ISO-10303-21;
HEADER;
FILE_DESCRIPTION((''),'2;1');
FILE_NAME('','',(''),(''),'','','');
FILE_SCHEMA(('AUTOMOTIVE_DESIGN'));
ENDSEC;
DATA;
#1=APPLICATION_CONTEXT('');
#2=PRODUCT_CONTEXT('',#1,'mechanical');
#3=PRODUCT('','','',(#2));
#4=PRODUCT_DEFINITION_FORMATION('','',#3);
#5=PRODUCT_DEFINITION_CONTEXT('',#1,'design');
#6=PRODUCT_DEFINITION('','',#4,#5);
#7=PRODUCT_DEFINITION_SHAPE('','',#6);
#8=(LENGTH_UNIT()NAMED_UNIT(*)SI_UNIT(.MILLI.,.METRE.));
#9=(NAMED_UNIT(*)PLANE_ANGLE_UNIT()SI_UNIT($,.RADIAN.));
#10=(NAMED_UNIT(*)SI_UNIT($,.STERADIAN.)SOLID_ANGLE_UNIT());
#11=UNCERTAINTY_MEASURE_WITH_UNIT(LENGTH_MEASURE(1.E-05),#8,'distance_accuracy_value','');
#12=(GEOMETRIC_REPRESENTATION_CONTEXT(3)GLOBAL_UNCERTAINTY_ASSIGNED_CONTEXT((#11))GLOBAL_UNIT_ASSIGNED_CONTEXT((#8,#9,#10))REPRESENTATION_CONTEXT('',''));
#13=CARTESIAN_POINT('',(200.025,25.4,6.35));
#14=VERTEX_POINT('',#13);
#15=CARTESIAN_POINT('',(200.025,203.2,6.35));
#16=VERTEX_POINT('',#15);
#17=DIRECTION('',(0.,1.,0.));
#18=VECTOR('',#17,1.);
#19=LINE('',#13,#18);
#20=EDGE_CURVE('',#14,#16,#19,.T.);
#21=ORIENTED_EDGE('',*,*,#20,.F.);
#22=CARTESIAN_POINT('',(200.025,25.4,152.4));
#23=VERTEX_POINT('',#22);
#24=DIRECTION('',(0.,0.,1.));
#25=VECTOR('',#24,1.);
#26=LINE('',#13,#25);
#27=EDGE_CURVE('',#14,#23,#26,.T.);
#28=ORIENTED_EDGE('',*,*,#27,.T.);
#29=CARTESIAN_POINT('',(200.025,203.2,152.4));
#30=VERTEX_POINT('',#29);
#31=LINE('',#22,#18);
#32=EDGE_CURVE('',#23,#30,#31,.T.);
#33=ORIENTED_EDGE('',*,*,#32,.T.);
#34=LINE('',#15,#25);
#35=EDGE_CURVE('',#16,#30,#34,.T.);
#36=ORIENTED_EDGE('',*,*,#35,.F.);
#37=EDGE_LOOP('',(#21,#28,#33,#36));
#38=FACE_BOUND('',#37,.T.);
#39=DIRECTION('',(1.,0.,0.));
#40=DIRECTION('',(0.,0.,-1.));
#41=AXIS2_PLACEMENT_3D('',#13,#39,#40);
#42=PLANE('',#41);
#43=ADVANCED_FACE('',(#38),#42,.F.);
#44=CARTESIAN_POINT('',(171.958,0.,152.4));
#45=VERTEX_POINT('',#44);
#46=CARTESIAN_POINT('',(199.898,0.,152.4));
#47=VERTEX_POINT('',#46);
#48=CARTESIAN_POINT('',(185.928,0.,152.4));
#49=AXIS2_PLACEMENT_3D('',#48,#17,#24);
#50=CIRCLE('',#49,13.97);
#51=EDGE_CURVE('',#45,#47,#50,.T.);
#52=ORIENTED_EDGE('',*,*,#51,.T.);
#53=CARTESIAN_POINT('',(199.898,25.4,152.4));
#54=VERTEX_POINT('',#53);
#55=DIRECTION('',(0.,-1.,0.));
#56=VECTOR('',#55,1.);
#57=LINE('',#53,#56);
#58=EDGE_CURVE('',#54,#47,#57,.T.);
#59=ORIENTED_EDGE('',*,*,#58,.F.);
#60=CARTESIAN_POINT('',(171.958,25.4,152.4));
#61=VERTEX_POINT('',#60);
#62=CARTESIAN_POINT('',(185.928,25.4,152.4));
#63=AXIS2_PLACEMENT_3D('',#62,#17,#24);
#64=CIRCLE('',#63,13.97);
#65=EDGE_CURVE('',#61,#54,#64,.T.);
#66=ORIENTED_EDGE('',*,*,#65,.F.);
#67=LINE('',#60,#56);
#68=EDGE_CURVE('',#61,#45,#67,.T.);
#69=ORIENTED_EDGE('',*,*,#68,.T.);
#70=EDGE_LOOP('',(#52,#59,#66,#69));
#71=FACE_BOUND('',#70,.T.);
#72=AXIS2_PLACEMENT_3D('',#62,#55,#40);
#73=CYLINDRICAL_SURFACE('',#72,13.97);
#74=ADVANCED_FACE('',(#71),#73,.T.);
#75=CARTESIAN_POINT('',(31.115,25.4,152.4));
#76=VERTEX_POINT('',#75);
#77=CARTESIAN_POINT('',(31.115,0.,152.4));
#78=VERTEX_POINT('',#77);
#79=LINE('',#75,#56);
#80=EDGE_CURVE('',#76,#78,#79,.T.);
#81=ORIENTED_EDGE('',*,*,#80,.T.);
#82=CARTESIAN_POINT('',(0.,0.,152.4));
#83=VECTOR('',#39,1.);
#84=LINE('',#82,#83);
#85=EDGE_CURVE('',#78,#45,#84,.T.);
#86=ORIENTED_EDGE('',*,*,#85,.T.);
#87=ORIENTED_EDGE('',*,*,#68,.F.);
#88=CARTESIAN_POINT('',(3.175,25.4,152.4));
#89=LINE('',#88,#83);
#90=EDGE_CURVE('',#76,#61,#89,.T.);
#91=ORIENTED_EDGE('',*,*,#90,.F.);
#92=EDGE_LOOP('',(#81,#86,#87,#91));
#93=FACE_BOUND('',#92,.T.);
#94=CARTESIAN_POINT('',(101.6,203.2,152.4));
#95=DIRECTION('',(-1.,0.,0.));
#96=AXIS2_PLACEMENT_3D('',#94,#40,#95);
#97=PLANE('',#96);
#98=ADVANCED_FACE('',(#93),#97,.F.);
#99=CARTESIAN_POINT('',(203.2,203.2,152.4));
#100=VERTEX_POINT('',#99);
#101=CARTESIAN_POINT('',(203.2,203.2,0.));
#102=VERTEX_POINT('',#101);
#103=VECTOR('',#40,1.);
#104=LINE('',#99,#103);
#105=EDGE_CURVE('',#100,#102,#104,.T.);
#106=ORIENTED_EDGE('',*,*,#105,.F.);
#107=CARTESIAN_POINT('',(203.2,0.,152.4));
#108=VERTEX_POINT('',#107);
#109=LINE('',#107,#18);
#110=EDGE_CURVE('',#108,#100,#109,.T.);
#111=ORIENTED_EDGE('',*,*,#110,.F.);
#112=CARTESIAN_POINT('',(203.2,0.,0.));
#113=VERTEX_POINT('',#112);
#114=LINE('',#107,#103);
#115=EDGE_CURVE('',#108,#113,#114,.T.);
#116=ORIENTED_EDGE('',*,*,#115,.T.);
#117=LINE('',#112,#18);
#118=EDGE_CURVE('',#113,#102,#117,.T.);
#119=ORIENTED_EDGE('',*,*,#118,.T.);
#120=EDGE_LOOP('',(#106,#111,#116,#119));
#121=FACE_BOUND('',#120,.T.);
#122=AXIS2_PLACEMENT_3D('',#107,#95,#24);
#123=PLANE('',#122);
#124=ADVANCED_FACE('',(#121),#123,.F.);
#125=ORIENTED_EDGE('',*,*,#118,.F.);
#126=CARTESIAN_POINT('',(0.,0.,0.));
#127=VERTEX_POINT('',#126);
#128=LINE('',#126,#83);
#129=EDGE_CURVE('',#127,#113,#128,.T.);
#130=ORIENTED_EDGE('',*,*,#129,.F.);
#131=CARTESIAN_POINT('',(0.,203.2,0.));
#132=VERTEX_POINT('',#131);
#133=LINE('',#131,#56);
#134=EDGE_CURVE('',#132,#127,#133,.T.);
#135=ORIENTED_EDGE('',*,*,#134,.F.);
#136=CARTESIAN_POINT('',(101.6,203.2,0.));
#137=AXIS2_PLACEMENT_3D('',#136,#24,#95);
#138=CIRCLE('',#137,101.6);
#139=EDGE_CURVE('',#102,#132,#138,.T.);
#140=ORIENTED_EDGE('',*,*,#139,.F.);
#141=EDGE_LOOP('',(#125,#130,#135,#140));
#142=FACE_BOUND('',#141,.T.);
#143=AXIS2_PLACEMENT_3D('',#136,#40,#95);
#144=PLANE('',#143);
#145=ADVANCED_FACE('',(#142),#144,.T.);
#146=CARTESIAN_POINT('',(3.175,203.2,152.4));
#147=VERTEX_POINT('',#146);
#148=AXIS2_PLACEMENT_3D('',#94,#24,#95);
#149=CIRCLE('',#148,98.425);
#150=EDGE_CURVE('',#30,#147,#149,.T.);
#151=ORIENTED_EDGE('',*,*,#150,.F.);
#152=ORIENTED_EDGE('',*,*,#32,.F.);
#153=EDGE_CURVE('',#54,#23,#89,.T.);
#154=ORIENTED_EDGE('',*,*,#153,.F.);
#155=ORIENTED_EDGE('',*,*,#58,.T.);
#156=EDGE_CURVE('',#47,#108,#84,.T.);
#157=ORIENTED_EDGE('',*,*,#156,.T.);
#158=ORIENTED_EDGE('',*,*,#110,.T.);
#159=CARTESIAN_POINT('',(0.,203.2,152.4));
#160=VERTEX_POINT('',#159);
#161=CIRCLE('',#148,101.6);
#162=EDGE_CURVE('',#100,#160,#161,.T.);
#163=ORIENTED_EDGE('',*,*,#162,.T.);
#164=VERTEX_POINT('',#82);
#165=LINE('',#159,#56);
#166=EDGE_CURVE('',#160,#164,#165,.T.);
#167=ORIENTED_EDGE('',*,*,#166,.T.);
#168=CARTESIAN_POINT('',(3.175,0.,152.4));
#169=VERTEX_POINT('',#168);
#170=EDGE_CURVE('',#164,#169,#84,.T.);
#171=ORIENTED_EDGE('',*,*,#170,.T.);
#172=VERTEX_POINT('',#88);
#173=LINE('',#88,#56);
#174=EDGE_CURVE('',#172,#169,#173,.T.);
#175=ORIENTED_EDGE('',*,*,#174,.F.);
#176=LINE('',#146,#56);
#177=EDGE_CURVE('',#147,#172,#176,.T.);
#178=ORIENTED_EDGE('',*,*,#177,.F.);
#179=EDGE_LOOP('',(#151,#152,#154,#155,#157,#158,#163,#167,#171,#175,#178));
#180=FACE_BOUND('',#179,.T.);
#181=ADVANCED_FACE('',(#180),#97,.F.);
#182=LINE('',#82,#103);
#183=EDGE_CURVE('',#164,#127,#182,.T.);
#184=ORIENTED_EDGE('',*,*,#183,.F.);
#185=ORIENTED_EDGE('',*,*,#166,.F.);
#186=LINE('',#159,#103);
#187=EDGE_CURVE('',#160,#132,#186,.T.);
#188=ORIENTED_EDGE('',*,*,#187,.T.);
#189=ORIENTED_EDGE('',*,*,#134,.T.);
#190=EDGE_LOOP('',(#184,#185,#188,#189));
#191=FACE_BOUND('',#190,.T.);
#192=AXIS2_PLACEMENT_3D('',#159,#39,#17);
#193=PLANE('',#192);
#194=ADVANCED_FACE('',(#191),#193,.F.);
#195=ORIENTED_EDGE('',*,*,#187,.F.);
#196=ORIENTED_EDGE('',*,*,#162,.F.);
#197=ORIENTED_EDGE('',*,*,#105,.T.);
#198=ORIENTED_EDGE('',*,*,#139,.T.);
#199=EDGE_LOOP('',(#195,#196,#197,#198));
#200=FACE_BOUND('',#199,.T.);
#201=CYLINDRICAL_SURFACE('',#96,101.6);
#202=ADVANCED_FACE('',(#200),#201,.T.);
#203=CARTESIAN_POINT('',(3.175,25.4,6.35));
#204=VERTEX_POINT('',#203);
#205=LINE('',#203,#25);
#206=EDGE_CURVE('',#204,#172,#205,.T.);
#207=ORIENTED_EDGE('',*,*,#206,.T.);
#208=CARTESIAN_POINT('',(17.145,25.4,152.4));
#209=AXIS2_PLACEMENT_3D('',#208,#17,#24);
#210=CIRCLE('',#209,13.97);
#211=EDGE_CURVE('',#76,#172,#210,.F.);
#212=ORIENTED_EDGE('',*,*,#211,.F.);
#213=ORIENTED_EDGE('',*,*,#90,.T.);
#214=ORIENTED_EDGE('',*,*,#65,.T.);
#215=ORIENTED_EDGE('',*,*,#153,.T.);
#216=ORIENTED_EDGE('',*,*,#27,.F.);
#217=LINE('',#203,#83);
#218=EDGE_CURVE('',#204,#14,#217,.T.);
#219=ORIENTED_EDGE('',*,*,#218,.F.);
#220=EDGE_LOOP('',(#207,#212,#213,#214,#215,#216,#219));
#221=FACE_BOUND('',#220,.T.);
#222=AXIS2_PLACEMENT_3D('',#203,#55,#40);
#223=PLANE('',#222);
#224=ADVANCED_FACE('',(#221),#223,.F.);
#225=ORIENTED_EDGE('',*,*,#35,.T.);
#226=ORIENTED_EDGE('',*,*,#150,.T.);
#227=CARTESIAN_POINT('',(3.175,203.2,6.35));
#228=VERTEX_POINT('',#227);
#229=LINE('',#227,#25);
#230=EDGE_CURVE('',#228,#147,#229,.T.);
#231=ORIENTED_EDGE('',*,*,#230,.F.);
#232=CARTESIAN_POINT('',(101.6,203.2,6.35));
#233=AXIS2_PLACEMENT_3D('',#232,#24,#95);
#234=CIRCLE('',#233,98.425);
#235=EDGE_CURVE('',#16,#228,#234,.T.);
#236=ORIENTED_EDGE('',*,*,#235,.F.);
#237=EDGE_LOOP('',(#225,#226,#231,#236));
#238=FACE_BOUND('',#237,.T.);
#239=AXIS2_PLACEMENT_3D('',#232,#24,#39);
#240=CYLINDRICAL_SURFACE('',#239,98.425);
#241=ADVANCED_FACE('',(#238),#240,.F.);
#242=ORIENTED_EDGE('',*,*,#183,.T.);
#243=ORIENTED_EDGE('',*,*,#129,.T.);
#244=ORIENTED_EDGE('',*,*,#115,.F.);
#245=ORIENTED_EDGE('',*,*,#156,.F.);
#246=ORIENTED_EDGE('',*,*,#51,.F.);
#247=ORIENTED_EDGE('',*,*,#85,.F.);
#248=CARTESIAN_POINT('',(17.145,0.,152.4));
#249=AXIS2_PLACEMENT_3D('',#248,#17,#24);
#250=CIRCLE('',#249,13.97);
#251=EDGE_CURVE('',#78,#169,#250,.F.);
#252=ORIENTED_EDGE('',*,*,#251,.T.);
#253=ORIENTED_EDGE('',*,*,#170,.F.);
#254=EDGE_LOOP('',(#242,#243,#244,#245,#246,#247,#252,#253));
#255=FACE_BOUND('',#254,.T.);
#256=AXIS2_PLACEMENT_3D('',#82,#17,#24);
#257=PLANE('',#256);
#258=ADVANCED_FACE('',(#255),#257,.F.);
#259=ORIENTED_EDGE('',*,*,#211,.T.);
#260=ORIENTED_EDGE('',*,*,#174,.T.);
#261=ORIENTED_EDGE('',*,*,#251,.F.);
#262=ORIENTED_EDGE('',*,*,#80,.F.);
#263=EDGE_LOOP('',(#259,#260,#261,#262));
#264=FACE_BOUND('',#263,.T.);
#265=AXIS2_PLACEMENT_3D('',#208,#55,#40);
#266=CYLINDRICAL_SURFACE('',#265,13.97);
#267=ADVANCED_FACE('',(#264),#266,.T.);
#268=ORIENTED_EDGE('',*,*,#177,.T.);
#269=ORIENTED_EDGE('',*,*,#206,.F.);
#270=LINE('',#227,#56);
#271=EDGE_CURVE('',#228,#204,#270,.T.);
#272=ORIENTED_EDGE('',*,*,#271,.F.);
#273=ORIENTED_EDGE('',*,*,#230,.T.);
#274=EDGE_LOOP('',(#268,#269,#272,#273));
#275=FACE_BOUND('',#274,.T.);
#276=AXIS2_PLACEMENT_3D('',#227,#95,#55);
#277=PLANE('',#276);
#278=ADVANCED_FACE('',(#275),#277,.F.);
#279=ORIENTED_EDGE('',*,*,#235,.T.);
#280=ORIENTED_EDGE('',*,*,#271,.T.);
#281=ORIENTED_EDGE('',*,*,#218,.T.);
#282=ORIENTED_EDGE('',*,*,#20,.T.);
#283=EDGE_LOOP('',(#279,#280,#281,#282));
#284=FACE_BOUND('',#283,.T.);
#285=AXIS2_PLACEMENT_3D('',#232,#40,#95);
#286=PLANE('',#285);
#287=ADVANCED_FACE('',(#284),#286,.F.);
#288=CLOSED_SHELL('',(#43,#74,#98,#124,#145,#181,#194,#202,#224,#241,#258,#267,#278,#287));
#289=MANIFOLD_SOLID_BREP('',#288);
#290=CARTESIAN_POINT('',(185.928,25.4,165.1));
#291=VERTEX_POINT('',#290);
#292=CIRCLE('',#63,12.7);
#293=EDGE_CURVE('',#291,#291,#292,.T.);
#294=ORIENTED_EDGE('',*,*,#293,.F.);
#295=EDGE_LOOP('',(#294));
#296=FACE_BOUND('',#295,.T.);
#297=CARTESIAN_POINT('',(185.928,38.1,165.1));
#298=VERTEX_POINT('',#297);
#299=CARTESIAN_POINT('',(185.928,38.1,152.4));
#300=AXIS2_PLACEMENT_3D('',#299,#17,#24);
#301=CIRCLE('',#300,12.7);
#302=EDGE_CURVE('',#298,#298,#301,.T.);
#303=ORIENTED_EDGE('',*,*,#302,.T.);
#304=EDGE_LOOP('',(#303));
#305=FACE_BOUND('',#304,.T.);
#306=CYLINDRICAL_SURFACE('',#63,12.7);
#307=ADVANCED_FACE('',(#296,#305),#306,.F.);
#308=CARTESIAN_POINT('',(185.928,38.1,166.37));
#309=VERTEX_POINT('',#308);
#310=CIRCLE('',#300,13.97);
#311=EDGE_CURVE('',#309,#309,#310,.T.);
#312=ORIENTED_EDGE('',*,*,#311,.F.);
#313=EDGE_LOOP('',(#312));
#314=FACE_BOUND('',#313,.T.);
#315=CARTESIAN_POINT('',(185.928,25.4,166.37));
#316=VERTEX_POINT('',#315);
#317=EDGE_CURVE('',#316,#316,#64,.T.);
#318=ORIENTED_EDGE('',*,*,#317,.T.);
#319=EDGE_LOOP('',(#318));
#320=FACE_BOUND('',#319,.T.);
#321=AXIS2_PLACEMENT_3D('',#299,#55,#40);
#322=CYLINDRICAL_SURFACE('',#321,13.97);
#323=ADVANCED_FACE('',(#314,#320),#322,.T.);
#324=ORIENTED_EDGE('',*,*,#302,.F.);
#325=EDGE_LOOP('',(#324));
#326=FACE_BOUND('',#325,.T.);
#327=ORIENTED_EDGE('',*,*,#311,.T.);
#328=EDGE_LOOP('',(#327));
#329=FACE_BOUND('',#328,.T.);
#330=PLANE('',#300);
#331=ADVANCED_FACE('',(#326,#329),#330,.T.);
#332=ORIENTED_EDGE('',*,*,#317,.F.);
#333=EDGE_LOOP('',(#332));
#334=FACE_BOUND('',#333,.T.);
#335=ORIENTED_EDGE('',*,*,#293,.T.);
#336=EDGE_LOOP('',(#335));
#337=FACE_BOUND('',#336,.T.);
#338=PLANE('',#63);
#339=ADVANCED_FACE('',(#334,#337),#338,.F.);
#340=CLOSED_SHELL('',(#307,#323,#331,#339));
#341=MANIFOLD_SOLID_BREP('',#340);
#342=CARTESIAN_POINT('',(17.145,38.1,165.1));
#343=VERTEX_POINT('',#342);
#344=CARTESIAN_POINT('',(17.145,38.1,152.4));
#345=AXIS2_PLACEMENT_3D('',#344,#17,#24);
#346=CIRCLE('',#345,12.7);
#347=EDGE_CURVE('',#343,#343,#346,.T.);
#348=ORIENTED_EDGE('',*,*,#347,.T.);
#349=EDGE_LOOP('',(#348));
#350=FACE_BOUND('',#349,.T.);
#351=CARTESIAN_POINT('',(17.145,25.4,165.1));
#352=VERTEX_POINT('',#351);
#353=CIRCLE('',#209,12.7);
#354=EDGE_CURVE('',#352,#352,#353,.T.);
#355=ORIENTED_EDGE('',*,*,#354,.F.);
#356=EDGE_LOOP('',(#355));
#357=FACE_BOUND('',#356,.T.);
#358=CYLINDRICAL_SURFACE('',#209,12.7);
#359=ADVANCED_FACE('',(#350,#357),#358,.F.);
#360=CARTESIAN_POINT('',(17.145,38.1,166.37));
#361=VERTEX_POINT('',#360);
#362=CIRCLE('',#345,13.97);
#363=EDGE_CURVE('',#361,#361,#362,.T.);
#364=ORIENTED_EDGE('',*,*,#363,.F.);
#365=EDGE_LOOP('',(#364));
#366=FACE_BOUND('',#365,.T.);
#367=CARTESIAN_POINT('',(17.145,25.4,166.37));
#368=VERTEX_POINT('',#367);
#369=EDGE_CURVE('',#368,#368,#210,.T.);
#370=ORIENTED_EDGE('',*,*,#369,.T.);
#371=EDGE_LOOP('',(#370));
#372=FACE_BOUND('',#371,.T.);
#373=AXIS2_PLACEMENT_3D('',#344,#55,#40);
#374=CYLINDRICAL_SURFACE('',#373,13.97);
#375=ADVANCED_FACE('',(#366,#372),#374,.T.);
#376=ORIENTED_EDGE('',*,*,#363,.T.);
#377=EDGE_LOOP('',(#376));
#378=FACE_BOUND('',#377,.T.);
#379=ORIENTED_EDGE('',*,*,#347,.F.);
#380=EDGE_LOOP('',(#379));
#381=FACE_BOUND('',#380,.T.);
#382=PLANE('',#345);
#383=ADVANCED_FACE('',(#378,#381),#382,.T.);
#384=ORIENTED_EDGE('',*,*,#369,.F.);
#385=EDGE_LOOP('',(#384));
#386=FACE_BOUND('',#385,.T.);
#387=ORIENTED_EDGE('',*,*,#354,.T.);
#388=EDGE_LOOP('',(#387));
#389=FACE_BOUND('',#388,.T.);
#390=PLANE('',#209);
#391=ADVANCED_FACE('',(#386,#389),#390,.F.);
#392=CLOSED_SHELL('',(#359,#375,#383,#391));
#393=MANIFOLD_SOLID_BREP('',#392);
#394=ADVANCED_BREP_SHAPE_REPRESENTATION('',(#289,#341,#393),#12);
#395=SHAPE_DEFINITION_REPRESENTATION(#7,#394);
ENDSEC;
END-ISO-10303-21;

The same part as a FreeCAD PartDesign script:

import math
import FreeCAD as App
import Part
import Sketcher
Q = App.Units.Quantity

doc = App.newDocument("Part")
params = doc.addObject("Spreadsheet::Sheet", "Params")
for row, (alias, value) in enumerate([
    ("sketch1_radius", "4 in"),
    ("pad1_length", "6 in"),
    ("sketch2_height", "7 in"),
    ("sketch2_radius", "3.875 in"),
    ("pocket1_length", "5.75 in"),
    ("sketch3_radius", "0.55 in"),
    ("pad2_length", "1 in"),
    ("sketch4_diameter", "1.1 in"),
    ("pad3_length", "0.5 in"),
    ("sketch5_diameter", "1.1 in"),
    ("pad4_length", "0.5 in"),
    ("sketch6_diameter", "1 in"),
    ("pad5_length", "0.5 in"),
], start=1):
    params.set(f"A{row}", alias)
    params.set(f"B{row}", "=" + value)
    params.setAlias(f"B{row}", alias)

body = doc.addObject("PartDesign::Body", "Body")

# Sketch on XY plane
sketch1 = body.newObject("Sketcher::SketchObject", "Sketch")
sketch1.AttachmentSupport = (doc.getObject("XY_Plane"), [""])
sketch1.MapMode = "FlatFace"
sketch1.addGeometry(Part.LineSegment(App.Vector(0, 203, 0), App.Vector(0, 0, 0)), False)
sketch1.addGeometry(Part.LineSegment(App.Vector(0, 0, 0), App.Vector(203, 0, 0)), False)
sketch1.addGeometry(Part.LineSegment(App.Vector(203, 0, 0), App.Vector(203, 203, 0)), False)
sketch1.addGeometry(Part.ArcOfCircle(Part.Circle(App.Vector(102, 203, 0), App.Vector(0, 0, 1), 102), math.radians(0), math.radians(180)), False)
sketch1.addConstraint(Sketcher.Constraint("Coincident", 0, 2, 1, 1))
sketch1.addConstraint(Sketcher.Constraint("Coincident", 1, 2, 2, 1))
sketch1.addConstraint(Sketcher.Constraint("Tangent", 2, 2, 3, 1))
sketch1.addConstraint(Sketcher.Constraint("Tangent", 3, 2, 0, 1))
sketch1.addConstraint(Sketcher.Constraint("Vertical", 0))
sketch1.addConstraint(Sketcher.Constraint("Horizontal", 1))
sketch1.addConstraint(Sketcher.Constraint("Vertical", 2))
sketch1.addConstraint(Sketcher.Constraint("Coincident", 0, 2, -1, 1))
sketch1.addConstraint(Sketcher.Constraint("Equal", 1, 0))
sketch1.addConstraint(Sketcher.Constraint("Radius", 3, Q("4 in")))
sketch1.setExpression("Constraints[9]", "Params.sketch1_radius")
pad1 = body.newObject("PartDesign::Pad", "Pad")
pad1.Profile = sketch1
pad1.setExpression("Length", "Params.pad1_length")

# Sketch on XY plane
sketch2 = body.newObject("Sketcher::SketchObject", "Sketch001")
sketch2.AttachmentSupport = (doc.getObject("XY_Plane"), [""])
sketch2.MapMode = "FlatFace"
sketch2.AttachmentOffset = App.Placement(App.Vector(0, 0, 6 * 25.4), App.Rotation())
sketch2.addGeometry(Part.LineSegment(App.Vector(3, 203, 0), App.Vector(3, 25, 0)), False)
sketch2.addGeometry(Part.LineSegment(App.Vector(3, 25, 0), App.Vector(200, 25, 0)), False)
sketch2.addGeometry(Part.LineSegment(App.Vector(200, 25, 0), App.Vector(200, 203, 0)), False)
sketch2.addGeometry(Part.ArcOfCircle(Part.Circle(App.Vector(102, 203, 0), App.Vector(0, 0, 1), 98), math.radians(0), math.radians(180)), False)
sketch2.addConstraint(Sketcher.Constraint("Coincident", 0, 2, 1, 1))
sketch2.addConstraint(Sketcher.Constraint("Coincident", 1, 2, 2, 1))
sketch2.addConstraint(Sketcher.Constraint("Tangent", 2, 2, 3, 1))
sketch2.addConstraint(Sketcher.Constraint("Tangent", 3, 2, 0, 1))
sketch2.addConstraint(Sketcher.Constraint("Vertical", 0))
sketch2.addConstraint(Sketcher.Constraint("Horizontal", 1))
sketch2.addConstraint(Sketcher.Constraint("Vertical", 2))
sketch2.addConstraint(Sketcher.Constraint("DistanceY", 0, 2, 0, 1, Q("7 in")))
sketch2.addConstraint(Sketcher.Constraint("DistanceX", -1, 1, 3, 3, Q("4 in")))
sketch2.addConstraint(Sketcher.Constraint("DistanceY", -1, 1, 3, 3, Q("8 in")))
sketch2.addConstraint(Sketcher.Constraint("Radius", 3, Q("3.875 in")))
sketch2.setExpression("Constraints[7]", "Params.sketch2_height")
sketch2.setExpression("Constraints[10]", "Params.sketch2_radius")
pocket1 = body.newObject("PartDesign::Pocket", "Pocket")
pocket1.Profile = sketch2
pocket1.setExpression("Length", "Params.pocket1_length")

# Sketch on XZ plane
sketch3 = body.newObject("Sketcher::SketchObject", "Sketch002")
sketch3.AttachmentSupport = (doc.getObject("XZ_Plane"), [""])
sketch3.MapMode = "FlatFace"
sketch3.addGeometry(Part.ArcOfCircle(Part.Circle(App.Vector(17, 152, 0), App.Vector(0, 0, 1), 14), math.radians(0), math.radians(180)), False)
sketch3.addGeometry(Part.LineSegment(App.Vector(31, 152, 0), App.Vector(3, 152, 0)), False)
sketch3.addGeometry(Part.LineSegment(App.Vector(200, 152, 0), App.Vector(172, 152, 0)), False)
sketch3.addGeometry(Part.ArcOfCircle(Part.Circle(App.Vector(186, 152, 0), App.Vector(0, 0, 1), 14), math.radians(0), math.radians(180)), False)
sketch3.addConstraint(Sketcher.Constraint("Coincident", 0, 1, 1, 1))
sketch3.addConstraint(Sketcher.Constraint("Coincident", 1, 2, 0, 2))
sketch3.addConstraint(Sketcher.Constraint("Coincident", 2, 1, 3, 1))
sketch3.addConstraint(Sketcher.Constraint("Coincident", 3, 2, 2, 2))
sketch3.addConstraint(Sketcher.Constraint("Horizontal", 1))
sketch3.addConstraint(Sketcher.Constraint("Horizontal", 2))
sketch3.addConstraint(Sketcher.Constraint("Equal", 0, 3))
sketch3.addConstraint(Sketcher.Constraint("Horizontal", 0, 3, 3, 3))
sketch3.addConstraint(Sketcher.Constraint("Horizontal", 3, 3, 0, 1))
sketch3.addConstraint(Sketcher.Constraint("Horizontal", 1, 2, 2, 1))
sketch3.addConstraint(Sketcher.Constraint("Radius", 0, Q("0.55 in")))
sketch3.addConstraint(Sketcher.Constraint("DistanceY", -1, 1, 0, 3, Q("6 in")))
sketch3.addConstraint(Sketcher.Constraint("DistanceX", -1, 1, 3, 3, Q("7.32 in")))
sketch3.addConstraint(Sketcher.Constraint("DistanceX", -1, 1, 0, 3, Q("0.675 in")))
sketch3.setExpression("Constraints[10]", "Params.sketch3_radius")
pad2 = body.newObject("PartDesign::Pad", "Pad001")
pad2.Profile = sketch3
pad2.setExpression("Length", "Params.pad2_length")
pad2.Reversed = True
body2 = doc.addObject("PartDesign::Body", "Body001")

# Sketch on XZ plane
sketch4 = body2.newObject("Sketcher::SketchObject", "Sketch003")
sketch4.AttachmentSupport = (doc.getObject("XZ_Plane001"), [""])
sketch4.MapMode = "FlatFace"
sketch4.AttachmentOffset = App.Placement(App.Vector(0, 0, -1 * 25.4), App.Rotation())
sketch4.addGeometry(Part.Circle(App.Vector(17, 152, 0), App.Vector(0, 0, 1), 14), False)
sketch4.addConstraint(Sketcher.Constraint("Diameter", 0, Q("1.1 in")))
sketch4.addConstraint(Sketcher.Constraint("DistanceY", -1, 1, 0, 3, Q("6 in")))
sketch4.addConstraint(Sketcher.Constraint("DistanceX", -1, 1, 0, 3, Q("0.675 in")))
sketch4.setExpression("Constraints[0]", "Params.sketch4_diameter")
pad3 = body2.newObject("PartDesign::Pad", "Pad002")
pad3.Profile = sketch4
pad3.setExpression("Length", "Params.pad3_length")
pad3.Reversed = True
body3 = doc.addObject("PartDesign::Body", "Body002")

# Sketch on XZ plane
sketch5 = body3.newObject("Sketcher::SketchObject", "Sketch004")
sketch5.AttachmentSupport = (doc.getObject("XZ_Plane002"), [""])
sketch5.MapMode = "FlatFace"
sketch5.AttachmentOffset = App.Placement(App.Vector(0, 0, -1 * 25.4), App.Rotation())
sketch5.addGeometry(Part.Circle(App.Vector(186, 152, 0), App.Vector(0, 0, 1), 14), False)
sketch5.addConstraint(Sketcher.Constraint("Diameter", 0, Q("1.1 in")))
sketch5.addConstraint(Sketcher.Constraint("DistanceY", -1, 1, 0, 3, Q("6 in")))
sketch5.addConstraint(Sketcher.Constraint("DistanceX", -1, 1, 0, 3, Q("7.32 in")))
sketch5.setExpression("Constraints[0]", "Params.sketch5_diameter")
pad4 = body3.newObject("PartDesign::Pad", "Pad003")
pad4.Profile = sketch5
pad4.setExpression("Length", "Params.pad4_length")
pad4.Reversed = True
body4 = doc.addObject("PartDesign::Body", "Body003")
body4.AllowCompound = True

# Sketch on XZ plane
sketch6 = body4.newObject("Sketcher::SketchObject", "Sketch005")
sketch6.AttachmentSupport = (doc.getObject("XZ_Plane003"), [""])
sketch6.MapMode = "FlatFace"
sketch6.AttachmentOffset = App.Placement(App.Vector(0, 0, -1.5 * 25.4), App.Rotation())
sketch6.addGeometry(Part.Circle(App.Vector(17, 152, 0), App.Vector(0, 0, 1), 13), False)
sketch6.addGeometry(Part.Circle(App.Vector(186, 152, 0), App.Vector(0, 0, 1), 13), False)
sketch6.addConstraint(Sketcher.Constraint("Equal", 0, 1))
sketch6.addConstraint(Sketcher.Constraint("Horizontal", 0, 3, 1, 3))
sketch6.addConstraint(Sketcher.Constraint("Diameter", 0, Q("1 in")))
sketch6.addConstraint(Sketcher.Constraint("DistanceY", -1, 1, 0, 3, Q("6 in")))
sketch6.addConstraint(Sketcher.Constraint("DistanceX", -1, 1, 1, 3, Q("7.32 in")))
sketch6.addConstraint(Sketcher.Constraint("DistanceX", -1, 1, 0, 3, Q("0.675 in")))
sketch6.setExpression("Constraints[2]", "Params.sketch6_diameter")
pad5 = body4.newObject("PartDesign::Pad", "Pad004")
pad5.Profile = sketch6
pad5.setExpression("Length", "Params.pad5_length")
doc.recompute()

body5 = doc.addObject("PartDesign::Body", "Body004")
body5.BaseFeature = body4
boolean = body2.newObject("PartDesign::Boolean", "Boolean")
boolean.Type = "Cut"
boolean.addObjects([body5])
doc.recompute()

boolean2 = body3.newObject("PartDesign::Boolean", "Boolean001")
boolean2.Type = "Cut"
boolean2.addObjects([body4])

doc.recompute()
